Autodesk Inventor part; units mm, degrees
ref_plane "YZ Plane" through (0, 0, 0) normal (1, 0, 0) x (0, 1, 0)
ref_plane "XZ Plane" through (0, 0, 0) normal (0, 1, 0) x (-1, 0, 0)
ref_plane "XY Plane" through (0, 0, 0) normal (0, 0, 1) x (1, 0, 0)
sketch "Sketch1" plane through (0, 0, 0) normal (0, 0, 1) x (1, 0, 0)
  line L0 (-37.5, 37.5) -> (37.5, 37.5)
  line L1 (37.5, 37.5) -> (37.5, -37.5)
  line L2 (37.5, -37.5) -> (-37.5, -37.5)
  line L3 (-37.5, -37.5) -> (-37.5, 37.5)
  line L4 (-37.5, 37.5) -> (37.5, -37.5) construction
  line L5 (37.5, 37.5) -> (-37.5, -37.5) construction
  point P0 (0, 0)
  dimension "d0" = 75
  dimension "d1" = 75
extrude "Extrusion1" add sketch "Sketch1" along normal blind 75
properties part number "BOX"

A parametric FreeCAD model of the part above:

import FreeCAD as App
import Part
import Sketcher
Q = App.Units.Quantity


def add_polygon(sketch, points):
    """Adds a closed chain of lines whose ends are joined by coincident constraints."""
    first, n = sketch.GeometryCount, len(points)
    for a, b in zip(points, points[1:] + points[:1]):
        sketch.addGeometry(Part.LineSegment(App.Vector(*a, 0), App.Vector(*b, 0)), False)
    for i in range(n):
        sketch.addConstraint(Sketcher.Constraint("Coincident", first + i, 2, first + (i + 1) % n, 1))

doc = App.newDocument("Part")
body = doc.addObject("PartDesign::Body", "Body")

# Sketch on XY plane
sketch1 = body.newObject("Sketcher::SketchObject", "Sketch")
sketch1.AttachmentSupport = (doc.getObject("XY_Plane"), [""])
sketch1.MapMode = "FlatFace"
add_polygon(sketch1, [(38, 38), (-38, 38), (-38, -38), (38, -38)])  # lines 0-3
sketch1.addConstraint([
    Sketcher.Constraint("Horizontal", 0),
    Sketcher.Constraint("Vertical", 1),
    Sketcher.Constraint("Horizontal", 2),
    Sketcher.Constraint("Vertical", 3),
    Sketcher.Constraint("Symmetric", 0, 2, 2, 2, -1, 1),
    Sketcher.Constraint("Equal", 2, 1),
    Sketcher.Constraint("DistanceX", 0, 2, 0, 1, Q("75 mm")),
])
pad1 = body.newObject("PartDesign::Pad", "Pad")
pad1.Profile = sketch1
pad1.Length = 75

doc.recompute()
